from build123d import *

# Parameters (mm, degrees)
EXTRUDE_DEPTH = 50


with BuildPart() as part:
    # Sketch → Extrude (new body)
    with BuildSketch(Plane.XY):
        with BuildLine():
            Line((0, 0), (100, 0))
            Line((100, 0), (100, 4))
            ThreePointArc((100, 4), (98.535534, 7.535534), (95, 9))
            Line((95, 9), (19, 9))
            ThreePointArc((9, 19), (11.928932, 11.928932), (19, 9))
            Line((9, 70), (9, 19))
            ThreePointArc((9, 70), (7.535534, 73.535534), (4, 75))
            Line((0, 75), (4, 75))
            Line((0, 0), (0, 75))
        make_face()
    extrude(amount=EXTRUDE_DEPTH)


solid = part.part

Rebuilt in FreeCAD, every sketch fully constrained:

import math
import FreeCAD as App
import Part
import Sketcher
from FreeCAD import Vector
Q = App.Units.Quantity

doc = App.newDocument("Part")
body = doc.addObject("PartDesign::Body", "Body")

# Sketch on XY plane
sketch1 = body.newObject("Sketcher::SketchObject", "Sketch")
sketch1.AttachmentSupport = (doc.getObject("XY_Plane"), [""])
sketch1.MapMode = "FlatFace"
sketch1.addGeometry([
    Part.LineSegment(Vector(0, 0, 0), Vector(100, 0, 0)),  # 0
    Part.LineSegment(Vector(100, 0, 0), Vector(100, 4, 0)),  # 1
    Part.ArcOfCircle(Part.Circle(Vector(95, 4, 0), Vector(0, 0, 1), 5), math.radians(0), math.radians(90)),  # 2
    Part.LineSegment(Vector(95, 9, 0), Vector(19, 9, 0)),  # 3
    Part.ArcOfCircle(Part.Circle(Vector(19, 19, 0), Vector(0, 0, 1), 10), math.radians(180), math.radians(270)),  # 4
    Part.LineSegment(Vector(9, 19, 0), Vector(9, 70, 0)),  # 5
    Part.ArcOfCircle(Part.Circle(Vector(4, 70, 0), Vector(0, 0, 1), 5), math.radians(0), math.radians(90)),  # 6
    Part.LineSegment(Vector(4, 75, 0), Vector(0, 75, 0)),  # 7
    Part.LineSegment(Vector(0, 75, 0), Vector(0, 0, 0)),  # 8
], False)
sketch1.addConstraint([
    Sketcher.Constraint("Coincident", 0, 2, 1, 1),
    Sketcher.Constraint("Tangent", 1, 2, 2, 1),
    Sketcher.Constraint("Tangent", 2, 2, 3, 1),
    Sketcher.Constraint("Tangent", 3, 2, 4, 2),
    Sketcher.Constraint("Tangent", 4, 1, 5, 1),
    Sketcher.Constraint("Tangent", 5, 2, 6, 1),
    Sketcher.Constraint("Tangent", 6, 2, 7, 1),
    Sketcher.Constraint("Coincident", 7, 2, 8, 1),
    Sketcher.Constraint("Coincident", 8, 2, 0, 1),
    Sketcher.Constraint("Horizontal", 0),
    Sketcher.Constraint("Vertical", 1),
    Sketcher.Constraint("Horizontal", 3),
    Sketcher.Constraint("Vertical", 5),
    Sketcher.Constraint("Horizontal", 7),
    Sketcher.Constraint("Vertical", 8),
    Sketcher.Constraint("Coincident", 8, 2, -1, 1),
    Sketcher.Constraint("Equal", 2, 6),
    Sketcher.Constraint("Equal", 7, 1),
    Sketcher.Constraint("Radius", 2, Q("5 mm")),
    Sketcher.Constraint("Radius", 4, Q("9.999999 mm")),
    Sketcher.Constraint("DistanceX", 0, 1, 0, 2, Q("100 mm")),
    Sketcher.Constraint("DistanceX", 3, 2, 3, 1, Q("76 mm")),
    Sketcher.Constraint("DistanceY", 5, 1, 5, 2, Q("51 mm")),
])
pad1 = body.newObject("PartDesign::Pad", "Pad")
pad1.Profile = sketch1
pad1.Length = 50

doc.recompute()
